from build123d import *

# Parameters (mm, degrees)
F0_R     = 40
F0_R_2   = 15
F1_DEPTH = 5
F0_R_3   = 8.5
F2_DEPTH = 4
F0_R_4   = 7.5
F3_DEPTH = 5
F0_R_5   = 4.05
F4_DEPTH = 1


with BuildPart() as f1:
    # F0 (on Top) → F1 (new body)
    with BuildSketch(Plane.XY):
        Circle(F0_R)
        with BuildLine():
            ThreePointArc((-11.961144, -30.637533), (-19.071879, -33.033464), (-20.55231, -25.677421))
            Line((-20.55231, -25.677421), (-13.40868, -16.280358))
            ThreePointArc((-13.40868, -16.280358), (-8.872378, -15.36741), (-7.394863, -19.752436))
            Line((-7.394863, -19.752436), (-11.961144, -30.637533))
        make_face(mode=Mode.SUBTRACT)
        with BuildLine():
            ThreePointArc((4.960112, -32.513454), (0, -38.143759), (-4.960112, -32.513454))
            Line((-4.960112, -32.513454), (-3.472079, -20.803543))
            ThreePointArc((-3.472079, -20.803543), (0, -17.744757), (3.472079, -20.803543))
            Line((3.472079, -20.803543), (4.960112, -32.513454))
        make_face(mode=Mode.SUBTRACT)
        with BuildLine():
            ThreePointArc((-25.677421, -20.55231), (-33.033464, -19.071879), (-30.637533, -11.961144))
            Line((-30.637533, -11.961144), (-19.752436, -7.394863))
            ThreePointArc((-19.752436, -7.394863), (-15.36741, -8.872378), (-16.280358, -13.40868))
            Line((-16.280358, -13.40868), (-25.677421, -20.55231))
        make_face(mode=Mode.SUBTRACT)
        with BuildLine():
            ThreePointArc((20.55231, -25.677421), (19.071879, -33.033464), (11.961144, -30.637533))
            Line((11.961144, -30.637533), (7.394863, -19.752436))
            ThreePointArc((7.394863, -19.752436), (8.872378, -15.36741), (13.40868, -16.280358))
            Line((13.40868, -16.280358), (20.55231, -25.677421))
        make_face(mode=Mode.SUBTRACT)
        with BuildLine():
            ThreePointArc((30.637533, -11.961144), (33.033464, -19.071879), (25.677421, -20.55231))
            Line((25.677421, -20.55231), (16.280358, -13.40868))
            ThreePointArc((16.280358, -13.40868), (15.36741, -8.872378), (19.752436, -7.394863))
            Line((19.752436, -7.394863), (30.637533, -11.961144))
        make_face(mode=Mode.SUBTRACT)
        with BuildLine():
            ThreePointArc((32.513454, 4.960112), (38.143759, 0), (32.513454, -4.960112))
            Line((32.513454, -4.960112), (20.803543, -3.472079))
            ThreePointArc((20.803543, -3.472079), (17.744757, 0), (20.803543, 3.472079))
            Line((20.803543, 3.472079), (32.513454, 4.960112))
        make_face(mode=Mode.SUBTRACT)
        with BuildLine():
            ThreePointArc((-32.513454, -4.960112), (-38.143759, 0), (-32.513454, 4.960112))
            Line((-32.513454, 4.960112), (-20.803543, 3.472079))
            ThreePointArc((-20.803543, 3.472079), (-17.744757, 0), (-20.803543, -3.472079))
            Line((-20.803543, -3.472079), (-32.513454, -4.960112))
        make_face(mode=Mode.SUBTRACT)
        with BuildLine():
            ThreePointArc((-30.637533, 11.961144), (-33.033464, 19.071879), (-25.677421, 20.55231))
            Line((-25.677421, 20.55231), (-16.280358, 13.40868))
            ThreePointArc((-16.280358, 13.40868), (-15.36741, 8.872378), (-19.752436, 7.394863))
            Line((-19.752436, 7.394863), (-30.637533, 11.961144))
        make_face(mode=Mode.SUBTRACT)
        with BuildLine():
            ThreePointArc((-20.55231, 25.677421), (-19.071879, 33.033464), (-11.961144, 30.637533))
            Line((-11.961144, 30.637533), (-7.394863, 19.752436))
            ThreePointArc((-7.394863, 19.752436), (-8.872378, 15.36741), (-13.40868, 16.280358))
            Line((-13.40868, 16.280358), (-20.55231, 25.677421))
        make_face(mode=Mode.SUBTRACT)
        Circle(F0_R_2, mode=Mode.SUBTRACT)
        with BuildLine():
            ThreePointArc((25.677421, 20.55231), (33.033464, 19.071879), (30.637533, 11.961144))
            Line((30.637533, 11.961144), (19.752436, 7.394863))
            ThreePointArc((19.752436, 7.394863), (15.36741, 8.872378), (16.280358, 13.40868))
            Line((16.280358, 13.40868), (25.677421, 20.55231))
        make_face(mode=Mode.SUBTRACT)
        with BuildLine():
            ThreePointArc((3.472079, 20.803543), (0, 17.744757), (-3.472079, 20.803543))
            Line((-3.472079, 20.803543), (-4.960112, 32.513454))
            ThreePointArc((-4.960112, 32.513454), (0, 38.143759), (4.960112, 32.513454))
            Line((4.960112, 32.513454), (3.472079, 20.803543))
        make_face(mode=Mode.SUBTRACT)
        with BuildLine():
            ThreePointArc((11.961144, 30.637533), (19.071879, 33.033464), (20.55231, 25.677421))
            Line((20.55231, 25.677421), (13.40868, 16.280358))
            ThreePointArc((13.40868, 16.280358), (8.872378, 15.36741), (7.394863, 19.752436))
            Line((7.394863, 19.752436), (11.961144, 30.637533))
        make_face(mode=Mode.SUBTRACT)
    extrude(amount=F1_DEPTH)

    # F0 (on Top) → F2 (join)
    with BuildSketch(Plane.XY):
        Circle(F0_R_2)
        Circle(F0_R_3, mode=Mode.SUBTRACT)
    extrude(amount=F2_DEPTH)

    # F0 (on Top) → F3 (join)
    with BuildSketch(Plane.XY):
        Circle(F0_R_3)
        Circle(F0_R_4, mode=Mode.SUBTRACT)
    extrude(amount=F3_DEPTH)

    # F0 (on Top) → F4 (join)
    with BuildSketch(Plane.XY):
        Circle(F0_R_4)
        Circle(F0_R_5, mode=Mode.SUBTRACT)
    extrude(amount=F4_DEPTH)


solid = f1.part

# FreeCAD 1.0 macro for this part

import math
import FreeCAD as App
import Part
import Sketcher

doc = App.newDocument("Part")
body = doc.addObject("PartDesign::Body", "Body")

sketch1 = body.newObject("Sketcher::SketchObject", "Sketch")
sketch1.AttachmentSupport = (doc.getObject("XY_Plane"), [""])
sketch1.MapMode = "FlatFace"
sketch1.addGeometry([
    Part.Circle(App.Vector(0, 0, 0), App.Vector(0, 0, 1), 40),
    Part.LineSegment(App.Vector(-7.4, -19.8, 0), App.Vector(-12, -30.6, 0)),
    Part.ArcOfCircle(Part.Circle(App.Vector(-16.6, -28.7, 0), App.Vector(0, 0, 1), 5), math.radians(143), math.radians(337)),
    Part.LineSegment(App.Vector(-20.6, -25.7, 0), App.Vector(-13.4, -16.3, 0)),
    Part.ArcOfCircle(Part.Circle(App.Vector(-10.6, -18.4, 0), App.Vector(0, 0, 1), 3.5), math.radians(-23), math.radians(143)),
    Part.LineSegment(App.Vector(-16.3, -13.4, 0), App.Vector(-25.7, -20.6, 0)),
    Part.ArcOfCircle(Part.Circle(App.Vector(-28.7, -16.6, 0), App.Vector(0, 0, 1), 5), math.radians(113), math.radians(307)),
    Part.LineSegment(App.Vector(-30.6, -12, 0), App.Vector(-19.8, -7.4, 0)),
    Part.ArcOfCircle(Part.Circle(App.Vector(-18.4, -10.6, 0), App.Vector(0, 0, 1), 3.5), math.radians(-53), math.radians(113)),
    Part.LineSegment(App.Vector(3.5, -20.8, 0), App.Vector(5, -32.5, 0)),
    Part.ArcOfCircle(Part.Circle(App.Vector(0, -33.1, 0), App.Vector(0, 0, 1), 5), math.radians(173), math.radians(367)),
    Part.LineSegment(App.Vector(-5, -32.5, 0), App.Vector(-3.5, -20.8, 0)),
    Part.ArcOfCircle(Part.Circle(App.Vector(0, -21.2, 0), App.Vector(0, 0, 1), 3.5), math.radians(7), math.radians(173)),
    Part.LineSegment(App.Vector(13.4, -16.3, 0), App.Vector(20.6, -25.7, 0)),
    Part.ArcOfCircle(Part.Circle(App.Vector(16.6, -28.7, 0), App.Vector(0, 0, 1), 5), math.radians(-157), math.radians(37)),
    Part.LineSegment(App.Vector(12, -30.6, 0), App.Vector(7.4, -19.8, 0)),
    Part.ArcOfCircle(Part.Circle(App.Vector(10.6, -18.4, 0), App.Vector(0, 0, 1), 3.5), math.radians(37), math.radians(203)),
    Part.Circle(App.Vector(0, 0, 0), App.Vector(0, 0, 1), 15),
    Part.LineSegment(App.Vector(19.8, -7.4, 0), App.Vector(30.6, -12, 0)),
    Part.ArcOfCircle(Part.Circle(App.Vector(28.7, -16.6, 0), App.Vector(0, 0, 1), 5), math.radians(-127), math.radians(67)),
    Part.LineSegment(App.Vector(25.7, -20.6, 0), App.Vector(16.3, -13.4, 0)),
    Part.ArcOfCircle(Part.Circle(App.Vector(18.4, -10.6, 0), App.Vector(0, 0, 1), 3.5), math.radians(67), math.radians(233)),
    Part.LineSegment(App.Vector(-20.8, -3.5, 0), App.Vector(-32.5, -5, 0)),
    Part.ArcOfCircle(Part.Circle(App.Vector(-33.1, 0, 0), App.Vector(0, 0, 1), 5), math.radians(83), math.radians(277)),
    Part.LineSegment(App.Vector(-32.5, 5, 0), App.Vector(-20.8, 3.5, 0)),
    Part.ArcOfCircle(Part.Circle(App.Vector(-21.2, 0, 0), App.Vector(0, 0, 1), 3.5), math.radians(-83), math.radians(83)),
    Part.LineSegment(App.Vector(-19.8, 7.4, 0), App.Vector(-30.6, 12, 0)),
    Part.ArcOfCircle(Part.Circle(App.Vector(-28.7, 16.6, 0), App.Vector(0, 0, 1), 5), math.radians(53), math.radians(247)),
    Part.LineSegment(App.Vector(-25.7, 20.6, 0), App.Vector(-16.3, 13.4, 0)),
    Part.ArcOfCircle(Part.Circle(App.Vector(-18.4, 10.6, 0), App.Vector(0, 0, 1), 3.5), math.radians(-113), math.radians(53)),
    Part.LineSegment(App.Vector(-13.4, 16.3, 0), App.Vector(-20.6, 25.7, 0)),
    Part.ArcOfCircle(Part.Circle(App.Vector(-16.6, 28.7, 0), App.Vector(0, 0, 1), 5), math.radians(23), math.radians(217)),
    Part.LineSegment(App.Vector(-12, 30.6, 0), App.Vector(-7.4, 19.8, 0)),
    Part.ArcOfCircle(Part.Circle(App.Vector(-10.6, 18.4, 0), App.Vector(0, 0, 1), 3.5), math.radians(-143), math.radians(23)),
    Part.LineSegment(App.Vector(20.8, 3.5, 0), App.Vector(32.5, 5, 0)),
    Part.ArcOfCircle(Part.Circle(App.Vector(33.1, 0, 0), App.Vector(0, 0, 1), 5), math.radians(-97), math.radians(97)),
    Part.LineSegment(App.Vector(32.5, -5, 0), App.Vector(20.8, -3.5, 0)),
    Part.ArcOfCircle(Part.Circle(App.Vector(21.2, 0, 0), App.Vector(0, 0, 1), 3.5), math.radians(97), math.radians(263)),
    Part.LineSegment(App.Vector(16.3, 13.4, 0), App.Vector(25.7, 20.6, 0)),
    Part.ArcOfCircle(Part.Circle(App.Vector(28.7, 16.6, 0), App.Vector(0, 0, 1), 5), math.radians(-67), math.radians(127)),
    Part.LineSegment(App.Vector(30.6, 12, 0), App.Vector(19.8, 7.4, 0)),
    Part.ArcOfCircle(Part.Circle(App.Vector(18.4, 10.6, 0), App.Vector(0, 0, 1), 3.5), math.radians(127), math.radians(293)),
    Part.LineSegment(App.Vector(5, 32.5, 0), App.Vector(3.5, 20.8, 0)),
    Part.ArcOfCircle(Part.Circle(App.Vector(0, 21.2, 0), App.Vector(0, 0, 1), 3.5), math.radians(-173), math.radians(-7)),
    Part.LineSegment(App.Vector(-3.5, 20.8, 0), App.Vector(-5, 32.5, 0)),
    Part.ArcOfCircle(Part.Circle(App.Vector(0, 33.1, 0), App.Vector(0, 0, 1), 5), math.radians(-7), math.radians(187)),
    Part.LineSegment(App.Vector(7.4, 19.8, 0), App.Vector(12, 30.6, 0)),
    Part.ArcOfCircle(Part.Circle(App.Vector(16.6, 28.7, 0), App.Vector(0, 0, 1), 5), math.radians(-37), math.radians(157)),
    Part.LineSegment(App.Vector(20.6, 25.7, 0), App.Vector(13.4, 16.3, 0)),
    Part.ArcOfCircle(Part.Circle(App.Vector(10.6, 18.4, 0), App.Vector(0, 0, 1), 3.5), math.radians(157), math.radians(323)),
], False)
sketch1.addConstraint([
    Sketcher.Constraint("Tangent", 1, 2, 2, 2),
    Sketcher.Constraint("Tangent", 2, 1, 3, 1),
    Sketcher.Constraint("Tangent", 3, 2, 4, 2),
    Sketcher.Constraint("Tangent", 4, 1, 1, 1),
    Sketcher.Constraint("Tangent", 5, 2, 6, 2),
    Sketcher.Constraint("Tangent", 6, 1, 7, 1),
    Sketcher.Constraint("Tangent", 7, 2, 8, 2),
    Sketcher.Constraint("Tangent", 8, 1, 5, 1),
    Sketcher.Constraint("Tangent", 9, 2, 10, 2),
    Sketcher.Constraint("Tangent", 10, 1, 11, 1),
    Sketcher.Constraint("Tangent", 11, 2, 12, 2),
    Sketcher.Constraint("Tangent", 12, 1, 9, 1),
    Sketcher.Constraint("Tangent", 13, 2, 14, 2),
    Sketcher.Constraint("Tangent", 14, 1, 15, 1),
    Sketcher.Constraint("Tangent", 15, 2, 16, 2),
    Sketcher.Constraint("Tangent", 16, 1, 13, 1),
    Sketcher.Constraint("Tangent", 18, 2, 19, 2),
    Sketcher.Constraint("Tangent", 19, 1, 20, 1),
    Sketcher.Constraint("Tangent", 20, 2, 21, 2),
    Sketcher.Constraint("Tangent", 21, 1, 18, 1),
    Sketcher.Constraint("Tangent", 22, 2, 23, 2),
    Sketcher.Constraint("Tangent", 23, 1, 24, 1),
    Sketcher.Constraint("Tangent", 24, 2, 25, 2),
    Sketcher.Constraint("Tangent", 25, 1, 22, 1),
    Sketcher.Constraint("Tangent", 26, 2, 27, 2),
    Sketcher.Constraint("Tangent", 27, 1, 28, 1),
    Sketcher.Constraint("Tangent", 28, 2, 29, 2),
    Sketcher.Constraint("Tangent", 29, 1, 26, 1),
    Sketcher.Constraint("Tangent", 30, 2, 31, 2),
    Sketcher.Constraint("Tangent", 31, 1, 32, 1),
    Sketcher.Constraint("Tangent", 32, 2, 33, 2),
    Sketcher.Constraint("Tangent", 33, 1, 30, 1),
    Sketcher.Constraint("Tangent", 34, 2, 35, 2),
    Sketcher.Constraint("Tangent", 35, 1, 36, 1),
    Sketcher.Constraint("Tangent", 36, 2, 37, 2),
    Sketcher.Constraint("Tangent", 37, 1, 34, 1),
    Sketcher.Constraint("Tangent", 38, 2, 39, 2),
    Sketcher.Constraint("Tangent", 39, 1, 40, 1),
    Sketcher.Constraint("Tangent", 40, 2, 41, 2),
    Sketcher.Constraint("Tangent", 41, 1, 38, 1),
    Sketcher.Constraint("Tangent", 42, 2, 43, 2),
    Sketcher.Constraint("Tangent", 43, 1, 44, 1),
    Sketcher.Constraint("Tangent", 44, 2, 45, 2),
    Sketcher.Constraint("Tangent", 45, 1, 42, 1),
    Sketcher.Constraint("Tangent", 46, 2, 47, 2),
    Sketcher.Constraint("Tangent", 47, 1, 48, 1),
    Sketcher.Constraint("Tangent", 48, 2, 49, 2),
    Sketcher.Constraint("Tangent", 49, 1, 46, 1),
    Sketcher.Constraint("Coincident", 0, 3, -1, 1),
    Sketcher.Constraint("Coincident", 17, 3, -1, 1),
    Sketcher.Constraint("Equal", 2, 6),
    Sketcher.Constraint("Equal", 4, 8),
    Sketcher.Constraint("Equal", 6, 10),
    Sketcher.Constraint("Equal", 8, 12),
    Sketcher.Constraint("Equal", 10, 14),
    Sketcher.Constraint("Equal", 12, 16),
    Sketcher.Constraint("Equal", 14, 19),
    Sketcher.Constraint("Equal", 16, 21),
    Sketcher.Constraint("Equal", 19, 23),
    Sketcher.Constraint("Equal", 21, 25),
    Sketcher.Constraint("Equal", 23, 27),
    Sketcher.Constraint("Equal", 25, 29),
    Sketcher.Constraint("Equal", 27, 31),
    Sketcher.Constraint("Equal", 29, 33),
    Sketcher.Constraint("Equal", 31, 35),
    Sketcher.Constraint("Equal", 33, 37),
    Sketcher.Constraint("Equal", 35, 39),
    Sketcher.Constraint("Equal", 37, 41),
    Sketcher.Constraint("Equal", 41, 43),
    Sketcher.Constraint("Equal", 39, 45),
    Sketcher.Constraint("Equal", 45, 47),
    Sketcher.Constraint("Equal", 43, 49),
    Sketcher.Constraint("Symmetric", 19, 3, 27, 3, -1, 1),
    Sketcher.Constraint("Symmetric", 21, 3, 29, 3, -1, 1),
    Sketcher.Constraint("Symmetric", 14, 3, 31, 3, -1, 1),
    Sketcher.Constraint("Symmetric", 16, 3, 33, 3, -1, 1),
    Sketcher.Constraint("Symmetric", 23, 3, 35, 3, -1, 1),
    Sketcher.Constraint("Symmetric", 25, 3, 37, 3, -1, 1),
    Sketcher.Constraint("Symmetric", 6, 3, 39, 3, -1, 1),
    Sketcher.Constraint("Symmetric", 8, 3, 41, 3, -1, 1),
    Sketcher.Constraint("Symmetric", 12, 3, 43, 3, -1, 1),
    Sketcher.Constraint("Symmetric", 10, 3, 45, 3, -1, 1),
    Sketcher.Constraint("Symmetric", 2, 3, 47, 3, -1, 1),
    Sketcher.Constraint("Symmetric", 4, 3, 49, 3, -1, 1),
    Sketcher.Constraint("Symmetric", 2, 3, 14, 3, -2),
    Sketcher.Constraint("Symmetric", 4, 3, 16, 3, -2),
    Sketcher.Constraint("Symmetric", 6, 3, 19, 3, -2),
    Sketcher.Constraint("Symmetric", 8, 3, 21, 3, -2),
    Sketcher.Constraint("Symmetric", 9, 2, 10, 1, -2),
    Sketcher.Constraint("Symmetric", 23, 1, 34, 2, -2),
    Sketcher.Constraint("Perpendicular", 5, 13),
    Sketcher.Constraint("Perpendicular", 7, 15),
    Sketcher.Constraint("Perpendicular", 9, 22),
    Sketcher.Constraint("Equal", 7, 9),
    Sketcher.Constraint("Diameter", 0, 80.0),
    Sketcher.Constraint("Diameter", 17, 30.0),
    Sketcher.Constraint("Radius", 2, 5.0),
    Sketcher.Constraint("Radius", 4, 3.5),
    Sketcher.Constraint("DistanceY", 4, 3, -1, 1, 18.398499),
    Sketcher.Constraint("DistanceX", 8, 3, -1, 1, 18.398499),
    Sketcher.Constraint("Distance", 1, 11.804078),
    Sketcher.Constraint("DistanceX", 2, 3, -1, 1, 16.57188),
    Sketcher.Constraint("DistanceX", 4, 3, -1, 1, 10.622378),
    Sketcher.Constraint("DistanceY", 6, 3, -1, 1, 16.57188),
    Sketcher.Constraint("DistanceY", 10, 3, -1, 1, 33.143759),
    Sketcher.Constraint("DistanceX", 23, 3, -1, 1, 33.143759),
])
pad1 = body.newObject("PartDesign::Pad", "Pad")
pad1.Profile = sketch1
pad1.Length = 5

sketch2 = body.newObject("Sketcher::SketchObject", "Sketch001")
sketch2.AttachmentSupport = (doc.getObject("XY_Plane"), [""])
sketch2.MapMode = "FlatFace"
sketch2.addGeometry([
    Part.Circle(App.Vector(0, 0, 0), App.Vector(0, 0, 1), 15),
    Part.Circle(App.Vector(0, 0, 0), App.Vector(0, 0, 1), 8),
], False)
sketch2.addConstraint([
    Sketcher.Constraint("Coincident", 0, 3, -1, 1),
    Sketcher.Constraint("Coincident", 1, 3, -1, 1),
    Sketcher.Constraint("Diameter", 0, 30.0),
    Sketcher.Constraint("Diameter", 1, 17.0),
])
pad2 = body.newObject("PartDesign::Pad", "Pad001")
pad2.Profile = sketch2
pad2.Length = 4

sketch3 = body.newObject("Sketcher::SketchObject", "Sketch002")
sketch3.AttachmentSupport = (doc.getObject("XY_Plane"), [""])
sketch3.MapMode = "FlatFace"
sketch3.addGeometry([
    Part.Circle(App.Vector(0, 0, 0), App.Vector(0, 0, 1), 8),
    Part.Circle(App.Vector(0, 0, 0), App.Vector(0, 0, 1), 8),
], False)
sketch3.addConstraint([
    Sketcher.Constraint("Coincident", 0, 3, -1, 1),
    Sketcher.Constraint("Coincident", 1, 3, -1, 1),
    Sketcher.Constraint("Diameter", 0, 17.0),
    Sketcher.Constraint("Diameter", 1, 15.0),
])
pad3 = body.newObject("PartDesign::Pad", "Pad002")
pad3.Profile = sketch3
pad3.Length = 5

sketch4 = body.newObject("Sketcher::SketchObject", "Sketch003")
sketch4.AttachmentSupport = (doc.getObject("XY_Plane"), [""])
sketch4.MapMode = "FlatFace"
sketch4.addGeometry([
    Part.Circle(App.Vector(0, 0, 0), App.Vector(0, 0, 1), 7.5),
    Part.Circle(App.Vector(0, 0, 0), App.Vector(0, 0, 1), 4),
], False)
sketch4.addConstraint([
    Sketcher.Constraint("Coincident", 0, 3, -1, 1),
    Sketcher.Constraint("Coincident", 1, 3, -1, 1),
    Sketcher.Constraint("Diameter", 0, 15.0),
    Sketcher.Constraint("Diameter", 1, 8.1),
])
pad4 = body.newObject("PartDesign::Pad", "Pad003")
pad4.Profile = sketch4
pad4.Length = 1

doc.recompute()
